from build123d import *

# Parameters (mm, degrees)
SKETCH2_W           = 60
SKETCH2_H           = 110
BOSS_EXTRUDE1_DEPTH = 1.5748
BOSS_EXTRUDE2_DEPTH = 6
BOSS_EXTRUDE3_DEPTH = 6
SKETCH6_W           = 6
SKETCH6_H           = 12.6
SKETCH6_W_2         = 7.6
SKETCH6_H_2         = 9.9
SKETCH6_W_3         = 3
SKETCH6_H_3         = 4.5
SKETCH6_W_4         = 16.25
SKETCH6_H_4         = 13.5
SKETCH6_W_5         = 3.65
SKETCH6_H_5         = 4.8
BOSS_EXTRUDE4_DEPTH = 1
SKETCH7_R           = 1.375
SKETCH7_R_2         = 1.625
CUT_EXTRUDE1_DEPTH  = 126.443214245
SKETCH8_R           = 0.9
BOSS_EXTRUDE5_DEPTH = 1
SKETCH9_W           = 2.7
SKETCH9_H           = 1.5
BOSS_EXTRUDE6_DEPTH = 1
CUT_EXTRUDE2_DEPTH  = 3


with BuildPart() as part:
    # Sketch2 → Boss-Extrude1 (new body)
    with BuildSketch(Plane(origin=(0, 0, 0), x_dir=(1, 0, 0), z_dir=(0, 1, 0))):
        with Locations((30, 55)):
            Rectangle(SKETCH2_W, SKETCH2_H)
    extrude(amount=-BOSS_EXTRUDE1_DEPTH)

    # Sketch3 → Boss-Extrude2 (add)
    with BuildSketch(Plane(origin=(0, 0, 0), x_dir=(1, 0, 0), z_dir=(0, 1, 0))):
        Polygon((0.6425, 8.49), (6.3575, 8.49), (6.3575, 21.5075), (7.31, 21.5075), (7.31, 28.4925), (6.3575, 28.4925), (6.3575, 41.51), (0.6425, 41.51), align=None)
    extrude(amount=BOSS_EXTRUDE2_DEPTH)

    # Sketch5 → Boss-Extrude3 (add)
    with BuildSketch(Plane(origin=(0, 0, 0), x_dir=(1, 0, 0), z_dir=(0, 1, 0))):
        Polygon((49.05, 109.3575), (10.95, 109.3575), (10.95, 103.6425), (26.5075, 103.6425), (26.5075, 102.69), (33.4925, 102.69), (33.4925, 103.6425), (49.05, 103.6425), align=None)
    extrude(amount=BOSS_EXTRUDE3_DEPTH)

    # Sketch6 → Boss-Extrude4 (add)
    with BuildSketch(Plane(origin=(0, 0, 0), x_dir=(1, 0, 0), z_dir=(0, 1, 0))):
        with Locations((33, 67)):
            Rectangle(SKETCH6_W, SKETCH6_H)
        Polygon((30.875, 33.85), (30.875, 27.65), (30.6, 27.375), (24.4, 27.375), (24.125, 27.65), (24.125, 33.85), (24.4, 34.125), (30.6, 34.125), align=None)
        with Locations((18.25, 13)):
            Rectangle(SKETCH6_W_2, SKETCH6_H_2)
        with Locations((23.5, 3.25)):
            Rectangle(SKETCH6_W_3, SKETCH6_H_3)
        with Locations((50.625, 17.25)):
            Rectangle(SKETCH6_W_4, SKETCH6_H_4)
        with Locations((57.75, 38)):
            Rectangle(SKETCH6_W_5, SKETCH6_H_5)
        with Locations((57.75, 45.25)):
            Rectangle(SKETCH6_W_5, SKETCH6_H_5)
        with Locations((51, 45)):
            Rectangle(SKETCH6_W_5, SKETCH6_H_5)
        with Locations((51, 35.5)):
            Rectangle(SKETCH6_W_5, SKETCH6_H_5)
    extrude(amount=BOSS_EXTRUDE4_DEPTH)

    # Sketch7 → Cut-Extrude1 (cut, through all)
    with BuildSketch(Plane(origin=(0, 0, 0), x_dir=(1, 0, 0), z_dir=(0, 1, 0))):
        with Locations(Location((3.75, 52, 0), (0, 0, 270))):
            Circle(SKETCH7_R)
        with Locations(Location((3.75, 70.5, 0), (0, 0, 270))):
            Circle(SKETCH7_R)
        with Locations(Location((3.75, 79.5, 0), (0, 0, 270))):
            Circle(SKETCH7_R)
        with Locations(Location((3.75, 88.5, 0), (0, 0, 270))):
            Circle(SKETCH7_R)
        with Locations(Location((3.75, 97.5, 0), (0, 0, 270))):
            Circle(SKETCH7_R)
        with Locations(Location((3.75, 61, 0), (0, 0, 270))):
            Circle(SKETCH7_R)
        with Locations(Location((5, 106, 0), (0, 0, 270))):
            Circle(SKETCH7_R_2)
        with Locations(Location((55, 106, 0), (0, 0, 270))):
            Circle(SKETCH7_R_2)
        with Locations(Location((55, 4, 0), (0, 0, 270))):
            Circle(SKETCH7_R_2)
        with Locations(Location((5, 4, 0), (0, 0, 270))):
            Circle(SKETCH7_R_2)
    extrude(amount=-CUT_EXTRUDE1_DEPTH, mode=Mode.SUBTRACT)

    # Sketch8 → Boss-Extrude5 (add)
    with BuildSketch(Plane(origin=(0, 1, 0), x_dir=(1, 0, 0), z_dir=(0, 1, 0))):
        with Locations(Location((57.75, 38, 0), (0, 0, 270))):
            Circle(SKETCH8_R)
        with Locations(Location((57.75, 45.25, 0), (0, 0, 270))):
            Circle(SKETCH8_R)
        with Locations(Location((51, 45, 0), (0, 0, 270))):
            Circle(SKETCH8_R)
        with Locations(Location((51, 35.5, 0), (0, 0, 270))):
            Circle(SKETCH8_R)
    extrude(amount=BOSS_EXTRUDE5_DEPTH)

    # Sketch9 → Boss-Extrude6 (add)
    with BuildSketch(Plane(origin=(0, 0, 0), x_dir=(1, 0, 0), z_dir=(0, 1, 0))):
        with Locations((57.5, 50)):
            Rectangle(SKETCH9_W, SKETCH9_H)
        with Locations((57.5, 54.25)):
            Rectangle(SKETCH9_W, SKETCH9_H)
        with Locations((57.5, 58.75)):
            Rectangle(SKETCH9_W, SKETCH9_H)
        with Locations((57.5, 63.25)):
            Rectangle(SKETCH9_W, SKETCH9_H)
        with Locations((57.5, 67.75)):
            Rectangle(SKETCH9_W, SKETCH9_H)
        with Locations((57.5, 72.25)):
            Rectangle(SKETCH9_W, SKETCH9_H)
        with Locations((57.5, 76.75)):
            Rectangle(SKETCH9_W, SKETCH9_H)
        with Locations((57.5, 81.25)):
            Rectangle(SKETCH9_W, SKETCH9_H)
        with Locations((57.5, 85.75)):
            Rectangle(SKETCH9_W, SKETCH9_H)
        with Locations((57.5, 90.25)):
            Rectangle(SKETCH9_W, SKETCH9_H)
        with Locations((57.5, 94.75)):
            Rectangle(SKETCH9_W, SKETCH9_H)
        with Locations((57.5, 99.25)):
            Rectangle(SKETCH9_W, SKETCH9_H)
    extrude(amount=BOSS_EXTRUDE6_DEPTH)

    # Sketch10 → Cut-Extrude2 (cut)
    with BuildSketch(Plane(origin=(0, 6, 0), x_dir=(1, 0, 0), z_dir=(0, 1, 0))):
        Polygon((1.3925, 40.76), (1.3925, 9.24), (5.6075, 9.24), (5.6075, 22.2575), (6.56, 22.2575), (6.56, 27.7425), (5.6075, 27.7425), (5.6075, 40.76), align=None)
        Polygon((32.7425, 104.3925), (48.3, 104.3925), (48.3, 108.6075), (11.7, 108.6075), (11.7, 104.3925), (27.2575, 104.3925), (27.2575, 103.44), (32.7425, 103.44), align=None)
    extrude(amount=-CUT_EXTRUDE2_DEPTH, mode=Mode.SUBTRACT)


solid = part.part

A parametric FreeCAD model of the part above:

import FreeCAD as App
import Part
import Sketcher

V = App.Vector
Q = App.Units.Quantity


def add_polygon(sketch, points):
    """Adds a closed chain of lines whose ends are joined by coincident constraints."""
    first, n = sketch.GeometryCount, len(points)
    for a, b in zip(points, points[1:] + points[:1]):
        sketch.addGeometry(Part.LineSegment(App.Vector(*a, 0), App.Vector(*b, 0)), False)
    for i in range(n):
        sketch.addConstraint(Sketcher.Constraint("Coincident", first + i, 2, first + (i + 1) % n, 1))

doc = App.newDocument("Part")
body = doc.addObject("PartDesign::Body", "Body")

sketch1 = doc.addObject("Sketcher::SketchObject", "Sketch")
body.addObject(sketch1)
sketch1.AttachmentSupport = (doc.XZ_Plane, [""])
sketch1.MapMode = "FlatFace"
add_polygon(sketch1, [(0, -110), (0, 0), (60, 0), (60, -110)])
sketch1.addConstraint([
    Sketcher.Constraint("Vertical", 0),
    Sketcher.Constraint("Horizontal", 1),
    Sketcher.Constraint("Vertical", 2),
    Sketcher.Constraint("Horizontal", 3),
    Sketcher.Constraint("Coincident", 0, 2, -1, 1),
    Sketcher.Constraint("DistanceX", 1, 1, 1, 2, Q("60 mm")),
    Sketcher.Constraint("DistanceY", 0, 1, 0, 2, Q("110 mm")),
])
pad1 = doc.addObject("PartDesign::Pad", "Pad")
body.addObject(pad1)
pad1.Profile = sketch1
pad1.Length = 1.5748

sketch2 = doc.addObject("Sketcher::SketchObject", "Sketch001")
body.addObject(sketch2)
sketch2.AttachmentSupport = (doc.XZ_Plane, [""])
sketch2.MapMode = "FlatFace"
add_polygon(sketch2, [(0.6, -8.5), (6.4, -8.5), (6.4, -21.5), (7.3, -21.5), (7.3, -28.5), (6.4, -28.5), (6.4, -41.5), (0.6, -41.5)])
sketch2.addConstraint([
    Sketcher.Constraint("Horizontal", 0),
    Sketcher.Constraint("Vertical", 1),
    Sketcher.Constraint("Horizontal", 2),
    Sketcher.Constraint("Vertical", 3),
    Sketcher.Constraint("Horizontal", 4),
    Sketcher.Constraint("Vertical", 5),
    Sketcher.Constraint("Horizontal", 6),
    Sketcher.Constraint("Vertical", 7),
    Sketcher.Constraint("Vertical", 1, 2, 4, 2),
    Sketcher.Constraint("Equal", 1, 5),
    Sketcher.Constraint("DistanceY", 7, 1, 7, 2, Q("33.02 mm")),
    Sketcher.Constraint("DistanceX", 0, 1, 0, 2, Q("5.715 mm")),
    Sketcher.Constraint("DistanceY", 3, 2, 3, 1, Q("6.985 mm")),
    Sketcher.Constraint("DistanceY", 0, 2, -1, 1, Q("8.49 mm")),
    Sketcher.Constraint("DistanceX", -1, 1, 2, 2, Q("7.31 mm")),
    Sketcher.Constraint("DistanceX", 2, 1, 2, 2, Q("0.9525 mm")),
])
pad2 = doc.addObject("PartDesign::Pad", "Pad001")
body.addObject(pad2)
pad2.Profile = sketch2
pad2.Length = 6
pad2.Reversed = True

sketch3 = doc.addObject("Sketcher::SketchObject", "Sketch002")
body.addObject(sketch3)
sketch3.AttachmentSupport = (doc.XZ_Plane, [""])
sketch3.MapMode = "FlatFace"
add_polygon(sketch3, [(49, -109.4), (10.9, -109.4), (10.9, -103.6), (26.5, -103.6), (26.5, -102.7), (33.5, -102.7), (33.5, -103.6), (49, -103.6)])
sketch3.addConstraint([
    Sketcher.Constraint("Horizontal", 0),
    Sketcher.Constraint("Vertical", 1),
    Sketcher.Constraint("Horizontal", 2),
    Sketcher.Constraint("Vertical", 3),
    Sketcher.Constraint("Horizontal", 4),
    Sketcher.Constraint("Vertical", 5),
    Sketcher.Constraint("Horizontal", 6),
    Sketcher.Constraint("Vertical", 7),
    Sketcher.Constraint("Horizontal", 2, 2, 5, 2),
    Sketcher.Constraint("Equal", 2, 6),
    Sketcher.Constraint("DistanceX", 0, 2, 0, 1, Q("38.1 mm")),
    Sketcher.Constraint("DistanceX", 4, 1, 4, 2, Q("6.985 mm")),
    Sketcher.Constraint("DistanceY", 1, 1, 1, 2, Q("5.715 mm")),
    Sketcher.Constraint("DistanceX", -1, 1, 0, 2, Q("10.95 mm")),
    Sketcher.Constraint("DistanceY", 3, 2, -1, 1, Q("102.69 mm")),
    Sketcher.Constraint("DistanceY", 3, 1, 3, 2, Q("0.9525 mm")),
])
pad3 = doc.addObject("PartDesign::Pad", "Pad002")
body.addObject(pad3)
pad3.Profile = sketch3
pad3.Length = 6
pad3.Reversed = True

sketch4 = doc.addObject("Sketcher::SketchObject", "Sketch003")
body.addObject(sketch4)
sketch4.AttachmentSupport = (doc.XZ_Plane, [""])
sketch4.MapMode = "FlatFace"
add_polygon(sketch4, [(30, -73.3), (30, -60.7), (36, -60.7), (36, -73.3)])
add_polygon(sketch4, [(30.88, -27.65), (30.88, -33.85), (30.6, -34.12), (24.4, -34.12), (24.12, -33.85), (24.12, -27.65), (24.4, -27.38), (30.6, -27.38)])
add_polygon(sketch4, [(14.45, -17.95), (14.45, -8.05), (22.05, -8.05), (22.05, -17.95)])
add_polygon(sketch4, [(22, -5.5), (22, -1), (25, -1), (25, -5.5)])
add_polygon(sketch4, [(42.5, -24), (42.5, -10.5), (58.75, -10.5), (58.75, -24)])
add_polygon(sketch4, [(55.92, -40.4), (55.92, -35.6), (59.58, -35.6), (59.58, -40.4)])
add_polygon(sketch4, [(55.92, -47.65), (55.92, -42.85), (59.58, -42.85), (59.58, -47.65)])
add_polygon(sketch4, [(49.17, -47.4), (49.17, -42.6), (52.83, -42.6), (52.83, -47.4)])
add_polygon(sketch4, [(49.17, -37.9), (49.17, -33.1), (52.83, -33.1), (52.83, -37.9)])
sketch4.addConstraint([
    Sketcher.Constraint("Vertical", 0),
    Sketcher.Constraint("Horizontal", 1),
    Sketcher.Constraint("Vertical", 2),
    Sketcher.Constraint("Horizontal", 3),
    Sketcher.Constraint("Vertical", 4),
    Sketcher.Constraint("Horizontal", 6),
    Sketcher.Constraint("Vertical", 8),
    Sketcher.Constraint("Horizontal", 10),
    Sketcher.Constraint("Vertical", 12),
    Sketcher.Constraint("Horizontal", 13),
    Sketcher.Constraint("Vertical", 14),
    Sketcher.Constraint("Horizontal", 15),
    Sketcher.Constraint("Vertical", 16),
    Sketcher.Constraint("Horizontal", 17),
    Sketcher.Constraint("Vertical", 18),
    Sketcher.Constraint("Horizontal", 19),
    Sketcher.Constraint("Vertical", 20),
    Sketcher.Constraint("Horizontal", 21),
    Sketcher.Constraint("Vertical", 22),
    Sketcher.Constraint("Horizontal", 23),
    Sketcher.Constraint("Vertical", 24),
    Sketcher.Constraint("Horizontal", 25),
    Sketcher.Constraint("Vertical", 26),
    Sketcher.Constraint("Horizontal", 27),
    Sketcher.Constraint("Vertical", 28),
    Sketcher.Constraint("Horizontal", 29),
    Sketcher.Constraint("Vertical", 30),
    Sketcher.Constraint("Horizontal", 31),
    Sketcher.Constraint("Vertical", 32),
    Sketcher.Constraint("Horizontal", 33),
    Sketcher.Constraint("Vertical", 34),
    Sketcher.Constraint("Horizontal", 35),
    Sketcher.Constraint("Vertical", 36),
    Sketcher.Constraint("Horizontal", 37),
    Sketcher.Constraint("Vertical", 38),
    Sketcher.Constraint("Horizontal", 39),
    Sketcher.Constraint("Perpendicular", 5, 7),
    Sketcher.Constraint("Perpendicular", 7, 9),
    Sketcher.Constraint("Perpendicular", 9, 11),
    Sketcher.Constraint("Horizontal", 4, 2, 7, 2),
    Sketcher.Constraint("Horizontal", 8, 2, 11, 2),
    Sketcher.Constraint("Vertical", 6, 2, 9, 2),
    Sketcher.Constraint("Vertical", 5, 2, 10, 2),
    Sketcher.Constraint("Vertical", 27, 2, 28, 2),
    Sketcher.Constraint("Vertical", 26, 2, 29, 2),
    Sketcher.Constraint("Vertical", 35, 2, 36, 2),
    Sketcher.Constraint("Vertical", 34, 2, 37, 2),
    Sketcher.Constraint("Equal", 31, 33),
    Sketcher.Constraint("Equal", 10, 4),
    Sketcher.Constraint("Equal", 26, 28),
    Sketcher.Constraint("Equal", 30, 32),
    Sketcher.Constraint("Equal", 34, 36),
    Sketcher.Constraint("DistanceX", 1, 1, 1, 2, Q("6 mm")),
    Sketcher.Constraint("DistanceX", 17, 1, 17, 2, Q("3 mm")),
    Sketcher.Constraint("DistanceX", 6, 2, 6, 1, Q("6.2 mm")),
    Sketcher.Constraint("DistanceX", 13, 1, 13, 2, Q("7.6 mm")),
    Sketcher.Constraint("DistanceY", 0, 1, 0, 2, Q("12.6 mm")),
    Sketcher.Constraint("DistanceY", 12, 1, 12, 2, Q("9.9 mm")),
    Sketcher.Constraint("DistanceY", 16, 1, 16, 2, Q("4.5 mm")),
    Sketcher.Constraint("DistanceY", 20, 1, 20, 2, Q("13.5 mm")),
    Sketcher.Constraint("DistanceY", 24, 1, 24, 2, Q("4.8 mm")),
    Sketcher.Constraint("DistanceX", -1, 1, 0, 2, Q("30 mm")),
    Sketcher.Constraint("DistanceX", -1, 1, 16, 2, Q("22 mm")),
    Sketcher.Constraint("DistanceY", 16, 2, -1, 1, Q("1 mm")),
    Sketcher.Constraint("DistanceY", 22, 2, -1, 1, Q("24 mm")),
    Sketcher.Constraint("DistanceY", 32, 2, 24, 2, Q("7 mm")),
    Sketcher.Constraint("DistanceX", 21, 1, 21, 2, Q("16.25 mm")),
    Sketcher.Constraint("DistanceX", 25, 1, 25, 2, Q("3.65 mm")),
    Sketcher.Constraint("DistanceY", 0, 2, -1, 1, Q("60.7 mm")),
    Sketcher.Constraint("DistanceX", -1, 1, 5, 2, Q("30.6 mm")),
    Sketcher.Constraint("DistanceX", -1, 1, 20, 2, Q("42.5 mm")),
    Sketcher.Constraint("DistanceY", 24, 2, -1, 1, Q("35.6 mm")),
    Sketcher.Constraint("DistanceY", 36, 2, -1, 1, Q("33.1 mm")),
    Sketcher.Constraint("DistanceY", 8, 2, 12, 2, Q("19.6 mm")),
    Sketcher.Constraint("DistanceX", 4, 2, 25, 2, Q("28.7 mm")),
    Sketcher.Constraint("DistanceX", 32, 2, 29, 2, Q("10.4 mm")),
    Sketcher.Constraint("DistanceY", 4, 2, -1, 1, Q("33.85 mm")),
    Sketcher.Constraint("DistanceX", -1, 1, 12, 2, Q("14.45 mm")),
    Sketcher.Constraint("DistanceY", 28, 2, -1, 1, Q("42.85 mm")),
    Sketcher.Constraint("DistanceX", 7, 2, 4, 2, Q("6.75 mm")),
])
pad4 = doc.addObject("PartDesign::Pad", "Pad003")
body.addObject(pad4)
pad4.Profile = sketch4
pad4.Length = 1
pad4.Reversed = True

sketch5 = doc.addObject("Sketcher::SketchObject", "Sketch004")
body.addObject(sketch5)
sketch5.AttachmentSupport = (doc.XZ_Plane, [""])
sketch5.MapMode = "FlatFace"
sketch5.addGeometry([
    Part.Circle(V(3.8, -52, 0), V(0, 0, 1), 1.4),
    Part.Circle(V(3.8, -70.5, 0), V(0, 0, 1), 1.4),
    Part.Circle(V(3.8, -79.5, 0), V(0, 0, 1), 1.4),
    Part.Circle(V(3.8, -88.5, 0), V(0, 0, 1), 1.4),
    Part.Circle(V(3.8, -97.5, 0), V(0, 0, 1), 1.4),
    Part.Circle(V(3.8, -61, 0), V(0, 0, 1), 1.4),
    Part.Circle(V(5, -106, 0), V(0, 0, 1), 1.6),
    Part.Circle(V(55, -106, 0), V(0, 0, 1), 1.6),
    Part.Circle(V(55, -4, 0), V(0, 0, 1), 1.6),
    Part.Circle(V(5, -4, 0), V(0, 0, 1), 1.6),
], False)
sketch5.addConstraint([
    Sketcher.Constraint("Equal", 0, 1),
    Sketcher.Constraint("Equal", 1, 2),
    Sketcher.Constraint("Equal", 2, 3),
    Sketcher.Constraint("Equal", 3, 4),
    Sketcher.Constraint("Equal", 4, 5),
    Sketcher.Constraint("Equal", 6, 7),
    Sketcher.Constraint("Equal", 7, 8),
    Sketcher.Constraint("Equal", 8, 9),
    Sketcher.Constraint("Horizontal", 6, 3, 7, 3),
    Sketcher.Constraint("Horizontal", 8, 3, 9, 3),
    Sketcher.Constraint("Vertical", 0, 3, 1, 3),
    Sketcher.Constraint("Vertical", 1, 3, 2, 3),
    Sketcher.Constraint("Vertical", 2, 3, 3, 3),
    Sketcher.Constraint("Vertical", 3, 3, 4, 3),
    Sketcher.Constraint("Vertical", 4, 3, 5, 3),
    Sketcher.Constraint("Vertical", 7, 3, 8, 3),
    Sketcher.Constraint("Vertical", 6, 3, 9, 3),
    Sketcher.Constraint("Diameter", 0, Q("2.75 mm")),
    Sketcher.Constraint("Diameter", 6, Q("3.25 mm")),
    Sketcher.Constraint("DistanceY", 0, 3, -1, 1, Q("52 mm")),
    Sketcher.Constraint("DistanceY", 5, 3, -1, 1, Q("61 mm")),
    Sketcher.Constraint("DistanceX", -1, 1, 6, 3, Q("5 mm")),
    Sketcher.Constraint("DistanceY", 6, 3, -1, 1, Q("106 mm")),
    Sketcher.Constraint("DistanceX", -1, 1, 7, 3, Q("55 mm")),
    Sketcher.Constraint("DistanceY", 8, 3, -1, 1, Q("4 mm")),
    Sketcher.Constraint("DistanceY", 2, 3, 1, 3, Q("9 mm")),
    Sketcher.Constraint("DistanceY", 3, 3, 2, 3, Q("9 mm")),
    Sketcher.Constraint("DistanceY", 4, 3, 3, 3, Q("9 mm")),
    Sketcher.Constraint("DistanceY", 1, 3, -1, 1, Q("70.5 mm")),
    Sketcher.Constraint("DistanceX", -1, 1, 0, 3, Q("3.75 mm")),
])
pocket1 = doc.addObject("PartDesign::Pocket", "Pocket")
body.addObject(pocket1)
pocket1.Profile = sketch5
pocket1.Type = "ThroughAll"
pocket1.Reversed = True

sketch6 = doc.addObject("Sketcher::SketchObject", "Sketch005")
body.addObject(sketch6)
sketch6.AttachmentSupport = (doc.XZ_Plane, [""])
sketch6.MapMode = "FlatFace"
sketch6.AttachmentOffset = App.Placement(V(0, 0, -1), App.Rotation())
sketch6.addGeometry([
    Part.Circle(V(57.8, -38, 0), V(0, 0, 1), 0.9),
    Part.Circle(V(57.8, -45.2, 0), V(0, 0, 1), 0.9),
    Part.Circle(V(51, -45, 0), V(0, 0, 1), 0.9),
    Part.Circle(V(51, -35.5, 0), V(0, 0, 1), 0.9),
], False)
sketch6.addConstraint([
    Sketcher.Constraint("Equal", 0, 1),
    Sketcher.Constraint("Equal", 1, 2),
    Sketcher.Constraint("Equal", 2, 3),
    Sketcher.Constraint("Vertical", 0, 3, 1, 3),
    Sketcher.Constraint("Vertical", 2, 3, 3, 3),
    Sketcher.Constraint("Diameter", 0, Q("1.8 mm")),
    Sketcher.Constraint("DistanceY", 0, 3, -1, 1, Q("38 mm")),
    Sketcher.Constraint("DistanceX", -1, 1, 2, 3, Q("51 mm")),
    Sketcher.Constraint("DistanceY", 2, 3, -1, 1, Q("45 mm")),
    Sketcher.Constraint("DistanceY", 3, 3, -1, 1, Q("35.5 mm")),
    Sketcher.Constraint("DistanceX", -1, 1, 0, 3, Q("57.75 mm")),
    Sketcher.Constraint("DistanceY", 1, 3, -1, 1, Q("45.25 mm")),
])
pad5 = doc.addObject("PartDesign::Pad", "Pad004")
body.addObject(pad5)
pad5.Profile = sketch6
pad5.Length = 1
pad5.Reversed = True

sketch7 = doc.addObject("Sketcher::SketchObject", "Sketch006")
body.addObject(sketch7)
sketch7.AttachmentSupport = (doc.XZ_Plane, [""])
sketch7.MapMode = "FlatFace"
add_polygon(sketch7, [(56.1, -50.8), (56.1, -49.2), (58.9, -49.2), (58.9, -50.8)])
add_polygon(sketch7, [(56.1, -55), (56.1, -53.5), (58.9, -53.5), (58.9, -55)])
add_polygon(sketch7, [(56.1, -59.5), (56.1, -58), (58.9, -58), (58.9, -59.5)])
add_polygon(sketch7, [(56.1, -64), (56.1, -62.5), (58.9, -62.5), (58.9, -64)])
add_polygon(sketch7, [(56.1, -68.5), (56.1, -67), (58.9, -67), (58.9, -68.5)])
add_polygon(sketch7, [(56.1, -73), (56.1, -71.5), (58.9, -71.5), (58.9, -73)])
add_polygon(sketch7, [(56.1, -77.5), (56.1, -76), (58.9, -76), (58.9, -77.5)])
add_polygon(sketch7, [(56.1, -82), (56.1, -80.5), (58.9, -80.5), (58.9, -82)])
add_polygon(sketch7, [(56.1, -86.5), (56.1, -85), (58.9, -85), (58.9, -86.5)])
add_polygon(sketch7, [(56.1, -91), (56.1, -89.5), (58.9, -89.5), (58.9, -91)])
add_polygon(sketch7, [(56.1, -95.5), (56.1, -94), (58.9, -94), (58.9, -95.5)])
add_polygon(sketch7, [(56.1, -100), (56.1, -98.5), (58.9, -98.5), (58.9, -100)])
sketch7.addConstraint([
    Sketcher.Constraint("Vertical", 0),
    Sketcher.Constraint("Horizontal", 1),
    Sketcher.Constraint("Vertical", 2),
    Sketcher.Constraint("Horizontal", 3),
    Sketcher.Constraint("Vertical", 4),
    Sketcher.Constraint("Horizontal", 5),
    Sketcher.Constraint("Vertical", 6),
    Sketcher.Constraint("Horizontal", 7),
    Sketcher.Constraint("Vertical", 8),
    Sketcher.Constraint("Horizontal", 9),
    Sketcher.Constraint("Vertical", 10),
    Sketcher.Constraint("Horizontal", 11),
    Sketcher.Constraint("Vertical", 12),
    Sketcher.Constraint("Horizontal", 13),
    Sketcher.Constraint("Vertical", 14),
    Sketcher.Constraint("Horizontal", 15),
    Sketcher.Constraint("Vertical", 16),
    Sketcher.Constraint("Horizontal", 17),
    Sketcher.Constraint("Vertical", 18),
    Sketcher.Constraint("Horizontal", 19),
    Sketcher.Constraint("Vertical", 20),
    Sketcher.Constraint("Horizontal", 21),
    Sketcher.Constraint("Vertical", 22),
    Sketcher.Constraint("Horizontal", 23),
    Sketcher.Constraint("Vertical", 24),
    Sketcher.Constraint("Horizontal", 25),
    Sketcher.Constraint("Vertical", 26),
    Sketcher.Constraint("Horizontal", 27),
    Sketcher.Constraint("Vertical", 28),
    Sketcher.Constraint("Horizontal", 29),
    Sketcher.Constraint("Vertical", 30),
    Sketcher.Constraint("Horizontal", 31),
    Sketcher.Constraint("Vertical", 32),
    Sketcher.Constraint("Horizontal", 33),
    Sketcher.Constraint("Vertical", 34),
    Sketcher.Constraint("Horizontal", 35),
    Sketcher.Constraint("Vertical", 36),
    Sketcher.Constraint("Horizontal", 37),
    Sketcher.Constraint("Vertical", 38),
    Sketcher.Constraint("Horizontal", 39),
    Sketcher.Constraint("Vertical", 40),
    Sketcher.Constraint("Horizontal", 41),
    Sketcher.Constraint("Vertical", 42),
    Sketcher.Constraint("Horizontal", 43),
    Sketcher.Constraint("Vertical", 44),
    Sketcher.Constraint("Horizontal", 45),
    Sketcher.Constraint("Vertical", 46),
    Sketcher.Constraint("Horizontal", 47),
    Sketcher.Constraint("Vertical", 3, 2, 4, 2),
    Sketcher.Constraint("Vertical", 2, 2, 5, 2),
    Sketcher.Constraint("Vertical", 7, 2, 8, 2),
    Sketcher.Constraint("Vertical", 6, 2, 9, 2),
    Sketcher.Constraint("Vertical", 11, 2, 12, 2),
    Sketcher.Constraint("Vertical", 10, 2, 13, 2),
    Sketcher.Constraint("Vertical", 15, 2, 16, 2),
    Sketcher.Constraint("Vertical", 14, 2, 17, 2),
    Sketcher.Constraint("Vertical", 19, 2, 20, 2),
    Sketcher.Constraint("Vertical", 18, 2, 21, 2),
    Sketcher.Constraint("Vertical", 23, 2, 24, 2),
    Sketcher.Constraint("Vertical", 22, 2, 25, 2),
    Sketcher.Constraint("Vertical", 27, 2, 28, 2),
    Sketcher.Constraint("Vertical", 26, 2, 29, 2),
    Sketcher.Constraint("Vertical", 31, 2, 32, 2),
    Sketcher.Constraint("Vertical", 30, 2, 33, 2),
    Sketcher.Constraint("Vertical", 35, 2, 36, 2),
    Sketcher.Constraint("Vertical", 34, 2, 37, 2),
    Sketcher.Constraint("Vertical", 39, 2, 40, 2),
    Sketcher.Constraint("Vertical", 38, 2, 41, 2),
    Sketcher.Constraint("Vertical", 43, 2, 44, 2),
    Sketcher.Constraint("Vertical", 42, 2, 45, 2),
    Sketcher.Constraint("Equal", 2, 4),
    Sketcher.Constraint("Equal", 6, 8),
    Sketcher.Constraint("Equal", 10, 12),
    Sketcher.Constraint("Equal", 14, 16),
    Sketcher.Constraint("Equal", 18, 20),
    Sketcher.Constraint("Equal", 22, 24),
    Sketcher.Constraint("Equal", 26, 28),
    Sketcher.Constraint("Equal", 30, 32),
    Sketcher.Constraint("Equal", 34, 36),
    Sketcher.Constraint("Equal", 38, 40),
    Sketcher.Constraint("Equal", 42, 44),
    Sketcher.Constraint("DistanceX", 1, 1, 1, 2, Q("2.7 mm")),
    Sketcher.Constraint("DistanceY", 0, 1, 0, 2, Q("1.5 mm")),
    Sketcher.Constraint("DistanceY", 6, 2, -1, 1, Q("55 mm")),
    Sketcher.Constraint("DistanceY", 8, 2, -1, 1, Q("58 mm")),
    Sketcher.Constraint("DistanceY", 14, 2, -1, 1, Q("64 mm")),
    Sketcher.Constraint("DistanceY", 16, 2, -1, 1, Q("67 mm")),
    Sketcher.Constraint("DistanceY", 22, 2, -1, 1, Q("73 mm")),
    Sketcher.Constraint("DistanceY", 24, 2, -1, 1, Q("76 mm")),
    Sketcher.Constraint("DistanceY", 30, 2, -1, 1, Q("82 mm")),
    Sketcher.Constraint("DistanceY", 32, 2, -1, 1, Q("85 mm")),
    Sketcher.Constraint("DistanceY", 38, 2, -1, 1, Q("91 mm")),
    Sketcher.Constraint("DistanceY", 40, 2, -1, 1, Q("94 mm")),
    Sketcher.Constraint("DistanceY", 46, 2, -1, 1, Q("100 mm")),
    Sketcher.Constraint("DistanceX", -1, 1, 0, 2, Q("56.15 mm")),
    Sketcher.Constraint("DistanceY", 0, 2, -1, 1, Q("49.25 mm")),
])
pad6 = doc.addObject("PartDesign::Pad", "Pad005")
body.addObject(pad6)
pad6.Profile = sketch7
pad6.Length = 1
pad6.Reversed = True

sketch8 = doc.addObject("Sketcher::SketchObject", "Sketch007")
body.addObject(sketch8)
sketch8.AttachmentSupport = (doc.XZ_Plane, [""])
sketch8.MapMode = "FlatFace"
sketch8.AttachmentOffset = App.Placement(V(0, 0, -6), App.Rotation())
add_polygon(sketch8, [(1.4, -40.8), (1.4, -9.2), (5.6, -9.2), (5.6, -22.3), (6.6, -22.3), (6.6, -27.7), (5.6, -27.7), (5.6, -40.8)])
add_polygon(sketch8, [(32.7, -104.4), (48.3, -104.4), (48.3, -108.6), (11.7, -108.6), (11.7, -104.4), (27.3, -104.4), (27.3, -103.4), (32.7, -103.4)])
sketch8.addConstraint([
    Sketcher.Constraint("Vertical", 0),
    Sketcher.Constraint("Horizontal", 1),
    Sketcher.Constraint("Vertical", 2),
    Sketcher.Constraint("Horizontal", 3),
    Sketcher.Constraint("Vertical", 4),
    Sketcher.Constraint("Horizontal", 5),
    Sketcher.Constraint("Vertical", 6),
    Sketcher.Constraint("Horizontal", 7),
    Sketcher.Constraint("Horizontal", 8),
    Sketcher.Constraint("Vertical", 9),
    Sketcher.Constraint("Horizontal", 10),
    Sketcher.Constraint("Vertical", 11),
    Sketcher.Constraint("Horizontal", 12),
    Sketcher.Constraint("Vertical", 13),
    Sketcher.Constraint("Horizontal", 14),
    Sketcher.Constraint("Vertical", 15),
    Sketcher.Constraint("Horizontal", 8, 2, 11, 2),
    Sketcher.Constraint("Vertical", 2, 2, 5, 2),
    Sketcher.Constraint("Equal", 8, 12),
    Sketcher.Constraint("Equal", 14, 4),
    Sketcher.Constraint("Equal", 2, 6),
    Sketcher.Constraint("Equal", 7, 9),
    Sketcher.Constraint("Equal", 5, 13),
    Sketcher.Constraint("DistanceX", 10, 2, 10, 1, Q("36.6 mm")),
    Sketcher.Constraint("DistanceY", 0, 1, 0, 2, Q("31.52 mm")),
    Sketcher.Constraint("DistanceX", -1, 1, 8, 2, Q("48.3 mm")),
    Sketcher.Constraint("DistanceX", 1, 1, 1, 2, Q("4.215 mm")),
    Sketcher.Constraint("DistanceX", 14, 1, 14, 2, Q("5.485 mm")),
    Sketcher.Constraint("DistanceY", 0, 2, -1, 1, Q("9.24 mm")),
    Sketcher.Constraint("DistanceX", -1, 1, 3, 2, Q("6.56 mm")),
    Sketcher.Constraint("DistanceY", 13, 2, -1, 1, Q("103.44 mm")),
    Sketcher.Constraint("DistanceY", 8, 2, 4, 2, Q("76.65 mm")),
])
pocket2 = doc.addObject("PartDesign::Pocket", "Pocket001")
body.addObject(pocket2)
pocket2.Profile = sketch8
pocket2.Length = 3
pocket2.Reversed = True

doc.recompute()
